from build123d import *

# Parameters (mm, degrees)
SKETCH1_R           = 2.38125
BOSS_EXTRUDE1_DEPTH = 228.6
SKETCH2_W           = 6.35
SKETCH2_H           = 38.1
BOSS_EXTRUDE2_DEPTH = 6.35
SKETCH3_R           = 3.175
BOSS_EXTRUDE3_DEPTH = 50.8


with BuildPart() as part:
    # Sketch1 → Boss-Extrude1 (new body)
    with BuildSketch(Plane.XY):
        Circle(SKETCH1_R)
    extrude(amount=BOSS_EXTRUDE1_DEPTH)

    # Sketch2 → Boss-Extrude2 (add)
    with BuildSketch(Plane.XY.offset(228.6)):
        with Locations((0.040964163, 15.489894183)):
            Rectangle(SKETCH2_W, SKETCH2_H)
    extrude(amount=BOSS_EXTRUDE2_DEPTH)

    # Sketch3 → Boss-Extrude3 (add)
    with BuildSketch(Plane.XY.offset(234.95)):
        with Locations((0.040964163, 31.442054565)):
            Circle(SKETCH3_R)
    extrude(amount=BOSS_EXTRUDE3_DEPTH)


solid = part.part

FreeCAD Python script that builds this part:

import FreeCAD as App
import Part
import Sketcher
from FreeCAD import Vector
Q = App.Units.Quantity


def add_polygon(sketch, points):
    """Adds a closed chain of lines whose ends are joined by coincident constraints."""
    first, n = sketch.GeometryCount, len(points)
    for a, b in zip(points, points[1:] + points[:1]):
        sketch.addGeometry(Part.LineSegment(App.Vector(*a, 0), App.Vector(*b, 0)), False)
    for i in range(n):
        sketch.addConstraint(Sketcher.Constraint("Coincident", first + i, 2, first + (i + 1) % n, 1))

doc = App.newDocument("Part")
body = doc.addObject("PartDesign::Body", "Body")

sketch1 = doc.addObject("Sketcher::SketchObject", "Sketch")
body.addObject(sketch1)
sketch1.AttachmentSupport = (doc.XY_Plane, [""])
sketch1.MapMode = "FlatFace"
sketch1.addGeometry(Part.Circle(Vector(0, 0, 0), Vector(0, 0, 1), 2.4), False)
sketch1.addConstraint(Sketcher.Constraint("Coincident", 0, 3, -1, 1))
sketch1.addConstraint(Sketcher.Constraint("Diameter", 0, Q("0.1875 in")))
pad1 = doc.addObject("PartDesign::Pad", "Pad")
body.addObject(pad1)
pad1.Profile = sketch1
pad1.Length = Q("9 in")

sketch2 = doc.addObject("Sketcher::SketchObject", "Sketch001")
body.addObject(sketch2)
sketch2.AttachmentSupport = (doc.XY_Plane, [""])
sketch2.MapMode = "FlatFace"
sketch2.AttachmentOffset = App.Placement(Vector(0, 0, 9 * 25.4), App.Rotation())
add_polygon(sketch2, [(-3, 35), (-3, -4), (3, -4), (3, 35)])
sketch2.addConstraint(Sketcher.Constraint("Vertical", 0))
sketch2.addConstraint(Sketcher.Constraint("Horizontal", 1))
sketch2.addConstraint(Sketcher.Constraint("Vertical", 2))
sketch2.addConstraint(Sketcher.Constraint("Horizontal", 3))
sketch2.addConstraint(Sketcher.Constraint("DistanceY", 0, 2, 0, 1, Q("1.5 in")))
sketch2.addConstraint(Sketcher.Constraint("DistanceX", 1, 1, 1, 2, Q("0.25 in")))
sketch2.addConstraint(Sketcher.Constraint("DistanceX", 0, 2, -1, 1, 3.134036))
sketch2.addConstraint(Sketcher.Constraint("DistanceY", 0, 2, -1, 1, 3.560106))
pad2 = doc.addObject("PartDesign::Pad", "Pad001")
body.addObject(pad2)
pad2.Profile = sketch2
pad2.Length = Q("0.25 in")

sketch3 = doc.addObject("Sketcher::SketchObject", "Sketch002")
body.addObject(sketch3)
sketch3.AttachmentSupport = (doc.XY_Plane, [""])
sketch3.MapMode = "FlatFace"
sketch3.AttachmentOffset = App.Placement(Vector(0, 0, 9.25 * 25.4), App.Rotation())
sketch3.addGeometry(Part.Circle(Vector(0, 31.4, 0), Vector(0, 0, 1), 3.2), False)
sketch3.addConstraint(Sketcher.Constraint("Diameter", 0, Q("0.25 in")))
sketch3.addConstraint(Sketcher.Constraint("DistanceX", -1, 1, 0, 3, 0.040964))
sketch3.addConstraint(Sketcher.Constraint("DistanceY", -1, 1, 0, 3, 31.442055))
pad3 = doc.addObject("PartDesign::Pad", "Pad002")
body.addObject(pad3)
pad3.Profile = sketch3
pad3.Length = Q("2 in")

doc.recompute()
